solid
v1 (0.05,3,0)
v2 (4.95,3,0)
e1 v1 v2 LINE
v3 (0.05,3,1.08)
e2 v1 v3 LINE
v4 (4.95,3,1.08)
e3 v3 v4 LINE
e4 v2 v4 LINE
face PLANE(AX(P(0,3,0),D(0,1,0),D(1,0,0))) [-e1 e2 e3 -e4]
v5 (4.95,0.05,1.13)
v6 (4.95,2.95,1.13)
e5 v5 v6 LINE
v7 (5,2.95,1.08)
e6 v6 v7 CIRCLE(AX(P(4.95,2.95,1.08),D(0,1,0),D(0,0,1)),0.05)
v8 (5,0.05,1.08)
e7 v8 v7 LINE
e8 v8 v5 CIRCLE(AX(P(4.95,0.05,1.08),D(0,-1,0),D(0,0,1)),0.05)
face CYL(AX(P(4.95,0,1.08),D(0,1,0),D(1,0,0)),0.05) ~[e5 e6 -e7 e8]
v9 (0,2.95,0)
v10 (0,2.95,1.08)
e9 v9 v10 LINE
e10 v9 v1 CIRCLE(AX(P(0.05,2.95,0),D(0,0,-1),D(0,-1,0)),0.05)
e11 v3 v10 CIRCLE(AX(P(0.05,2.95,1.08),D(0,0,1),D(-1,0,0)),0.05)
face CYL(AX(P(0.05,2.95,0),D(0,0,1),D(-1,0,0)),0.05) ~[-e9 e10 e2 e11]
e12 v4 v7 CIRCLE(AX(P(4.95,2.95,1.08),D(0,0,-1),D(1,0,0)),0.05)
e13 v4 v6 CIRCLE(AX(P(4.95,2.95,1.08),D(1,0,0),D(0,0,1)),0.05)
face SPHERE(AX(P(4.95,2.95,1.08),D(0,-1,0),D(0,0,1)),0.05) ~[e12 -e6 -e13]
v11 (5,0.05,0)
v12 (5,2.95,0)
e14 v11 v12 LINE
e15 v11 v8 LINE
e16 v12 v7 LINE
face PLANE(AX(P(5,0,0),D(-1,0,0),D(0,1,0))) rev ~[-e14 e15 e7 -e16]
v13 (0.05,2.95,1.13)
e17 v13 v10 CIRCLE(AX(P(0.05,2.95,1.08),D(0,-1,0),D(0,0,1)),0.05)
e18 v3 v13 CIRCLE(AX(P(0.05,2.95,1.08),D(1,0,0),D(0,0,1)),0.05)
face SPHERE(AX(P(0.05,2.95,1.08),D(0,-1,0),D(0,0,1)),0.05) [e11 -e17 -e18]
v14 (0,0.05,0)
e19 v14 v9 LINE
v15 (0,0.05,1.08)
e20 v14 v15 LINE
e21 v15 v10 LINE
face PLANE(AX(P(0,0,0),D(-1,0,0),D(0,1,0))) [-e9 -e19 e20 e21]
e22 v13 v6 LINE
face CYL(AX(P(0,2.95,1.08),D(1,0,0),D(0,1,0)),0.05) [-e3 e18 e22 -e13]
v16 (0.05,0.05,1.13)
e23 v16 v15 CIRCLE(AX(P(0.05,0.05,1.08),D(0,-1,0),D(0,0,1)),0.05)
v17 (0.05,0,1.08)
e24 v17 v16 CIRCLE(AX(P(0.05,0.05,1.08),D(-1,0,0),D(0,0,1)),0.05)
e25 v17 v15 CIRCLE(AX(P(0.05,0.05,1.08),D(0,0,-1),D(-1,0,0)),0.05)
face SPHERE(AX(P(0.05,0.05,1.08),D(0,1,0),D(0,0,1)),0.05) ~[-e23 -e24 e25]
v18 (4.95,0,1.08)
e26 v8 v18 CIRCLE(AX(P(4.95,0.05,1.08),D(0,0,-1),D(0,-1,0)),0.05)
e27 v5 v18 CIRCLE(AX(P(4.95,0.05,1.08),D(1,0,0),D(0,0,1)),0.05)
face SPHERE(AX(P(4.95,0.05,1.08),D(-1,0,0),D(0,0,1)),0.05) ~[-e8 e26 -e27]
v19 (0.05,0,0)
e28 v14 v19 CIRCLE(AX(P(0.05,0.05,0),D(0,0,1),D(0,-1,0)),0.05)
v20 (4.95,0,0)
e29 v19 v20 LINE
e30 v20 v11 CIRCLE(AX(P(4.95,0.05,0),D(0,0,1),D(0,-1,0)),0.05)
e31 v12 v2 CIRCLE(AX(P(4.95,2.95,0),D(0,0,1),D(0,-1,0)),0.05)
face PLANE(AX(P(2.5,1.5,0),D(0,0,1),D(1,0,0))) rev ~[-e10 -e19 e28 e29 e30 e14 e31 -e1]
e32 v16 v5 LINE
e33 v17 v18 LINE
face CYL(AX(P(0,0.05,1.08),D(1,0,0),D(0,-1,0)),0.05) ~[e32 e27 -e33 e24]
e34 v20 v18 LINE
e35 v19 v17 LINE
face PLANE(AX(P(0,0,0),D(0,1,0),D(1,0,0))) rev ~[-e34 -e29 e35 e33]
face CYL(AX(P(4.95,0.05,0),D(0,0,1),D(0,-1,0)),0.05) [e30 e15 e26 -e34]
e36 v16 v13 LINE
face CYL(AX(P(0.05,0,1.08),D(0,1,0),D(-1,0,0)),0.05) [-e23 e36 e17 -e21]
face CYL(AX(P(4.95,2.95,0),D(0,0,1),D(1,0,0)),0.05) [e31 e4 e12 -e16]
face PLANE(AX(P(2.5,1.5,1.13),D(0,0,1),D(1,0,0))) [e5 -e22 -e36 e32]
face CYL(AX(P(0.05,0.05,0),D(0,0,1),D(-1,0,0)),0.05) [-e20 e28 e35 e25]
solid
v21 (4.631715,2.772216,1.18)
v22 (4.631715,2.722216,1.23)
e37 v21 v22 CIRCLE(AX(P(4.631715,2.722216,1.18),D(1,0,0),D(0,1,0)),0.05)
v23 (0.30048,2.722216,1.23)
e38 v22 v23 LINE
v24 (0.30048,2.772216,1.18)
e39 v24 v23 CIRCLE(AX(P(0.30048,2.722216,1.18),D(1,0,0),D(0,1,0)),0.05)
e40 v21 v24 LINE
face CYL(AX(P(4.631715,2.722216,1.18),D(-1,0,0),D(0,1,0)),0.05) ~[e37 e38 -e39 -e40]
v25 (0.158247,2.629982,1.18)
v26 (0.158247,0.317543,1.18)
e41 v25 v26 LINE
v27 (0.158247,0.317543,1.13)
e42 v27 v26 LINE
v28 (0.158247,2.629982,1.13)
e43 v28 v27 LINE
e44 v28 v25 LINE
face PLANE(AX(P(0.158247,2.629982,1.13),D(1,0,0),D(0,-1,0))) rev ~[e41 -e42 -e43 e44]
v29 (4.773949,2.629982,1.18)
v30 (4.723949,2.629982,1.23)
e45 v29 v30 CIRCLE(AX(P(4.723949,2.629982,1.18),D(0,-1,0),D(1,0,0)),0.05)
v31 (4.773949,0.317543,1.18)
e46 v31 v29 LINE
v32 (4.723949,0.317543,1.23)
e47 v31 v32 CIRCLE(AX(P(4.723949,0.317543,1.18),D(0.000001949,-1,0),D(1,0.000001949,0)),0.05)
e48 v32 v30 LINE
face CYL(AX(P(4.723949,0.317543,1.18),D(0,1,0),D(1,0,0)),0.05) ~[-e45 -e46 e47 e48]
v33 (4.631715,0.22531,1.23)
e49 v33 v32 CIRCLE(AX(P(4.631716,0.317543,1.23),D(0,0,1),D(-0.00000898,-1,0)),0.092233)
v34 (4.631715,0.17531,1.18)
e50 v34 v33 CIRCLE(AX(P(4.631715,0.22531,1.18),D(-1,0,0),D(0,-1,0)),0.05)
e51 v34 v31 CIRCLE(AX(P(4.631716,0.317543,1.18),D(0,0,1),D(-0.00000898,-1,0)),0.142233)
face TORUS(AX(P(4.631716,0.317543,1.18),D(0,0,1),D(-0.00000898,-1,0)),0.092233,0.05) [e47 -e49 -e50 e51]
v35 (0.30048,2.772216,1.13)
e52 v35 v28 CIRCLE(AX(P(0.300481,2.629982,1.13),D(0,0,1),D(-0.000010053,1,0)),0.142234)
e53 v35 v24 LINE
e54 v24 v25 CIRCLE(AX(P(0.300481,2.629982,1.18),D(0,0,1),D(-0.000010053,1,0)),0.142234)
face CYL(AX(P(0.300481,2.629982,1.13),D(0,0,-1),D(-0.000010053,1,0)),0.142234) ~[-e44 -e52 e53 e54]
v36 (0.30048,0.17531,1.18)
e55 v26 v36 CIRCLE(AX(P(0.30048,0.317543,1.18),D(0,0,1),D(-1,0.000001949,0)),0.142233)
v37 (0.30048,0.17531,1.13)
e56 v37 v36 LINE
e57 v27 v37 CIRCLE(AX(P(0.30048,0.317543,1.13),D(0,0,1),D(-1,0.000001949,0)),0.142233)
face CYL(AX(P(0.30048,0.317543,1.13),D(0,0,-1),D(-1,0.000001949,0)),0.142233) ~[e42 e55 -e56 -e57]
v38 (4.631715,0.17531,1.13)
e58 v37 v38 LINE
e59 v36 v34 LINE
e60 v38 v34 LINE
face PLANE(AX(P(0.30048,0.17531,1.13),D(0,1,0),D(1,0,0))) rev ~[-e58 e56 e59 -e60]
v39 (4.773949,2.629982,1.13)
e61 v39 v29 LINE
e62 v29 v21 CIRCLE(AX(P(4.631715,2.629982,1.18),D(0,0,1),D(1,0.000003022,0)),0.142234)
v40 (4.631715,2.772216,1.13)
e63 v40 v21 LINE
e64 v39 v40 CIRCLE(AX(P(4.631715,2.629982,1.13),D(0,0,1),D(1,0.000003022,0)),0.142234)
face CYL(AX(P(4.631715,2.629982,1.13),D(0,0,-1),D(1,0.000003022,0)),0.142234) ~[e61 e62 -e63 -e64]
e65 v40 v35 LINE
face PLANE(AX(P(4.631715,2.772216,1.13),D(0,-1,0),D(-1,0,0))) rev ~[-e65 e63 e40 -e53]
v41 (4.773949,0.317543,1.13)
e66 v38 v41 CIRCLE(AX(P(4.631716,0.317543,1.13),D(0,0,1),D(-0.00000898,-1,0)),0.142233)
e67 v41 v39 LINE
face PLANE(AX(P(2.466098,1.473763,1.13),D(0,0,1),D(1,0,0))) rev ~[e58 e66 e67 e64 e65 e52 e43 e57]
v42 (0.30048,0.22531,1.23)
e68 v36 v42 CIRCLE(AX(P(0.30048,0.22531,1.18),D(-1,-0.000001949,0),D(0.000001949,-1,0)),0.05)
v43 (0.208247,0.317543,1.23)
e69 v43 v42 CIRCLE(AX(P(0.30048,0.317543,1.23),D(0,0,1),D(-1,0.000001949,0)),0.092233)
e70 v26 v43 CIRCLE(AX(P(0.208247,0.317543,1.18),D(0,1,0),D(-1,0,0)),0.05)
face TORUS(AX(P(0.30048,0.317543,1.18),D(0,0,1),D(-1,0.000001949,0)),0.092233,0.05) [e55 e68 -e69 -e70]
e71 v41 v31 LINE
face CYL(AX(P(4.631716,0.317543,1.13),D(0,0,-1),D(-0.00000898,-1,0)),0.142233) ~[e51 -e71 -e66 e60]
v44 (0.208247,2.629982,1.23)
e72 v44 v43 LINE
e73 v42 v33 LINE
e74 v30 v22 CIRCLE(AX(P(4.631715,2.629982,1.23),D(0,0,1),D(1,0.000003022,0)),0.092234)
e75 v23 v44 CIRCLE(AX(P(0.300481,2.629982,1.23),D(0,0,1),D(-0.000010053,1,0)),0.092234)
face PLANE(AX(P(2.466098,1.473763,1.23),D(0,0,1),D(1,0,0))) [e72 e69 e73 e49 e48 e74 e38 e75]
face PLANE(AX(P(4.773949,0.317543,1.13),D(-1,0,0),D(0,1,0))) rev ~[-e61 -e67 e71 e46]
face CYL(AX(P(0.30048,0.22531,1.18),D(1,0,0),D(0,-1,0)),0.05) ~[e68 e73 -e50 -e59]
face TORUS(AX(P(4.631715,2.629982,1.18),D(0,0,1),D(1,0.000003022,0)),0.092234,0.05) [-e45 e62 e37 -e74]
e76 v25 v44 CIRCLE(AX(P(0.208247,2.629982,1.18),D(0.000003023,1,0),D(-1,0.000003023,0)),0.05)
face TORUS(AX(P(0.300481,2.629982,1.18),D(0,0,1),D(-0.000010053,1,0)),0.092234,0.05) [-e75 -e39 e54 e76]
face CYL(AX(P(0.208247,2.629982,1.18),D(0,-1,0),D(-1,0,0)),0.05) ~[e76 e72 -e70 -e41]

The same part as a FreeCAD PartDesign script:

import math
import FreeCAD as App
import Part
import Sketcher

V = App.Vector
Q = App.Units.Quantity


def edges_at(feature, points):
    """Names of the edges that pass closest to the given points."""
    edges = feature.Shape.Edges
    near = lambda p: min(range(len(edges)), key=lambda i: edges[i].distToShape(Part.Vertex(*p))[0])
    return sorted({f"Edge{near(p) + 1}" for p in points})

doc = App.newDocument("Part")
body = doc.addObject("PartDesign::Body", "Body")

# Sketch on XY plane
sketch1 = body.newObject("Sketcher::SketchObject", "Sketch")
sketch1.AttachmentSupport = (doc.getObject("XY_Plane"), [""])
sketch1.MapMode = "FlatFace"
sketch1.addGeometry(Part.LineSegment(V(0, 3, 0), V(0, 0, 0)), False)
sketch1.addGeometry(Part.LineSegment(V(0, 0, 0), V(5, 0, 0)), False)
sketch1.addGeometry(Part.LineSegment(V(5, 0, 0), V(5, 3, 0)), False)
sketch1.addGeometry(Part.LineSegment(V(5, 3, 0), V(0, 3, 0)), False)
sketch1.addConstraint(Sketcher.Constraint("Coincident", 0, 2, 1, 1))
sketch1.addConstraint(Sketcher.Constraint("Coincident", 1, 2, 2, 1))
sketch1.addConstraint(Sketcher.Constraint("Coincident", 2, 2, 3, 1))
sketch1.addConstraint(Sketcher.Constraint("Coincident", 3, 2, 0, 1))
sketch1.addConstraint(Sketcher.Constraint("Vertical", 0))
sketch1.addConstraint(Sketcher.Constraint("Horizontal", 1))
sketch1.addConstraint(Sketcher.Constraint("Vertical", 2))
sketch1.addConstraint(Sketcher.Constraint("Horizontal", 3))
sketch1.addConstraint(Sketcher.Constraint("Coincident", 0, 2, -1, 1))
sketch1.addConstraint(Sketcher.Constraint("DistanceX", 1, 1, 1, 2, Q("5 mm")))
sketch1.addConstraint(Sketcher.Constraint("DistanceY", 0, 2, 0, 1, Q("3 mm")))
pad1 = body.newObject("PartDesign::Pad", "Pad")
pad1.Profile = sketch1
pad1.Length = 1.13
doc.recompute()

fillet = body.newObject("PartDesign::Fillet", "Fillet")
fillet.Base = (pad1, edges_at(pad1, [
    (0, 1.5, 1.13),
    (2.5, 0, 1.13),
    (5, 1.5, 1.13),
    (2.5, 3, 1.13),
    (5, 3, 0.565),
    (5, 0, 0.565),
    (0, 3, 0.565),
    (0, 0, 0.565),
]))
fillet.Radius = 0.05
body2 = doc.addObject("PartDesign::Body", "Body001")

# Sketch on XY plane
sketch2 = body2.newObject("Sketcher::SketchObject", "Sketch001")
sketch2.AttachmentSupport = (doc.getObject("XY_Plane001"), [""])
sketch2.MapMode = "FlatFace"
sketch2.AttachmentOffset = App.Placement(V(0, 0, 1.13), App.Rotation())
sketch2.addGeometry(Part.LineSegment(V(4.631715, 2.772216, 0), V(0.30048, 2.772216, 0)), False)
sketch2.addGeometry(Part.ArcOfCircle(Part.Circle(V(0.300481, 2.629982, 0), V(0, 0, 1), 0.142234), math.radians(90.000576), math.radians(179.999827)), False)
sketch2.addGeometry(Part.LineSegment(V(0.158247, 2.629982, 0), V(0.158247, 0.317543, 0)), False)
sketch2.addGeometry(Part.ArcOfCircle(Part.Circle(V(0.30048, 0.317543, 0), V(0, 0, 1), 0.142233), math.radians(179.999888), math.radians(270.000112)), False)
sketch2.addGeometry(Part.LineSegment(V(0.30048, 0.17531, 0), V(4.631715, 0.17531, 0)), False)
sketch2.addGeometry(Part.ArcOfCircle(Part.Circle(V(4.631716, 0.317543, 0), V(0, 0, 1), 0.142233), math.radians(-90.000514), math.radians(0.000112)), False)
sketch2.addGeometry(Part.LineSegment(V(4.773949, 0.317543, 0), V(4.773949, 2.629982, 0)), False)
sketch2.addGeometry(Part.ArcOfCircle(Part.Circle(V(4.631715, 2.629982, 0), V(0, 0, 1), 0.142234), math.radians(0.000173), math.radians(89.999827)), False)
sketch2.addConstraint(Sketcher.Constraint("Coincident", 0, 2, 1, 1))
sketch2.addConstraint(Sketcher.Constraint("Coincident", 1, 2, 2, 1))
sketch2.addConstraint(Sketcher.Constraint("Tangent", 2, 2, 3, 1))
sketch2.addConstraint(Sketcher.Constraint("Tangent", 3, 2, 4, 1))
sketch2.addConstraint(Sketcher.Constraint("Coincident", 4, 2, 5, 1))
sketch2.addConstraint(Sketcher.Constraint("Tangent", 5, 2, 6, 1))
sketch2.addConstraint(Sketcher.Constraint("Coincident", 6, 2, 7, 1))
sketch2.addConstraint(Sketcher.Constraint("Coincident", 7, 2, 0, 1))
sketch2.addConstraint(Sketcher.Constraint("Horizontal", 0))
sketch2.addConstraint(Sketcher.Constraint("Vertical", 2))
sketch2.addConstraint(Sketcher.Constraint("Horizontal", 4))
sketch2.addConstraint(Sketcher.Constraint("Vertical", 6))
sketch2.addConstraint(Sketcher.Constraint("Equal", 1, 3))
sketch2.addConstraint(Sketcher.Constraint("Equal", 3, 5))
sketch2.addConstraint(Sketcher.Constraint("Equal", 5, 7))
sketch2.addConstraint(Sketcher.Constraint("Horizontal", 7, 3, 1, 2))
sketch2.addConstraint(Sketcher.Constraint("Horizontal", 1, 2, 6, 2))
sketch2.addConstraint(Sketcher.Constraint("Vertical", 3, 3, 0, 2))
sketch2.addConstraint(Sketcher.Constraint("Vertical", 7, 3, 4, 2))
sketch2.addConstraint(Sketcher.Constraint("Vertical", 4, 2, 7, 2))
sketch2.addConstraint(Sketcher.Constraint("Radius", 1, Q("0.142234 mm")))
sketch2.addConstraint(Sketcher.Constraint("DistanceY", 2, 2, 2, 1, Q("2.312439 mm")))
sketch2.addConstraint(Sketcher.Constraint("DistanceX", 0, 2, 0, 1, Q("4.331235 mm")))
sketch2.addConstraint(Sketcher.Constraint("DistanceX", -1, 1, 1, 3, Q("0.300481 mm")))
sketch2.addConstraint(Sketcher.Constraint("DistanceY", -1, 1, 1, 3, Q("2.629982 mm")))
pad2 = body2.newObject("PartDesign::Pad", "Pad001")
pad2.Profile = sketch2
pad2.Length = 0.1
doc.recompute()

fillet2 = body2.newObject("PartDesign::Fillet", "Fillet001")
fillet2.Base = (pad2, edges_at(pad2, [
    (2.466, 2.772, 1.23),
    (0.158, 1.474, 1.23),
    (2.466, 0.175, 1.23),
    (4.774, 1.474, 1.23),
    (4.732, 2.731, 1.23),
    (4.732, 0.217, 1.23),
    (0.2, 0.217, 1.23),
    (0.2, 2.731, 1.23),
]))
fillet2.Radius = 0.05

doc.recompute()
